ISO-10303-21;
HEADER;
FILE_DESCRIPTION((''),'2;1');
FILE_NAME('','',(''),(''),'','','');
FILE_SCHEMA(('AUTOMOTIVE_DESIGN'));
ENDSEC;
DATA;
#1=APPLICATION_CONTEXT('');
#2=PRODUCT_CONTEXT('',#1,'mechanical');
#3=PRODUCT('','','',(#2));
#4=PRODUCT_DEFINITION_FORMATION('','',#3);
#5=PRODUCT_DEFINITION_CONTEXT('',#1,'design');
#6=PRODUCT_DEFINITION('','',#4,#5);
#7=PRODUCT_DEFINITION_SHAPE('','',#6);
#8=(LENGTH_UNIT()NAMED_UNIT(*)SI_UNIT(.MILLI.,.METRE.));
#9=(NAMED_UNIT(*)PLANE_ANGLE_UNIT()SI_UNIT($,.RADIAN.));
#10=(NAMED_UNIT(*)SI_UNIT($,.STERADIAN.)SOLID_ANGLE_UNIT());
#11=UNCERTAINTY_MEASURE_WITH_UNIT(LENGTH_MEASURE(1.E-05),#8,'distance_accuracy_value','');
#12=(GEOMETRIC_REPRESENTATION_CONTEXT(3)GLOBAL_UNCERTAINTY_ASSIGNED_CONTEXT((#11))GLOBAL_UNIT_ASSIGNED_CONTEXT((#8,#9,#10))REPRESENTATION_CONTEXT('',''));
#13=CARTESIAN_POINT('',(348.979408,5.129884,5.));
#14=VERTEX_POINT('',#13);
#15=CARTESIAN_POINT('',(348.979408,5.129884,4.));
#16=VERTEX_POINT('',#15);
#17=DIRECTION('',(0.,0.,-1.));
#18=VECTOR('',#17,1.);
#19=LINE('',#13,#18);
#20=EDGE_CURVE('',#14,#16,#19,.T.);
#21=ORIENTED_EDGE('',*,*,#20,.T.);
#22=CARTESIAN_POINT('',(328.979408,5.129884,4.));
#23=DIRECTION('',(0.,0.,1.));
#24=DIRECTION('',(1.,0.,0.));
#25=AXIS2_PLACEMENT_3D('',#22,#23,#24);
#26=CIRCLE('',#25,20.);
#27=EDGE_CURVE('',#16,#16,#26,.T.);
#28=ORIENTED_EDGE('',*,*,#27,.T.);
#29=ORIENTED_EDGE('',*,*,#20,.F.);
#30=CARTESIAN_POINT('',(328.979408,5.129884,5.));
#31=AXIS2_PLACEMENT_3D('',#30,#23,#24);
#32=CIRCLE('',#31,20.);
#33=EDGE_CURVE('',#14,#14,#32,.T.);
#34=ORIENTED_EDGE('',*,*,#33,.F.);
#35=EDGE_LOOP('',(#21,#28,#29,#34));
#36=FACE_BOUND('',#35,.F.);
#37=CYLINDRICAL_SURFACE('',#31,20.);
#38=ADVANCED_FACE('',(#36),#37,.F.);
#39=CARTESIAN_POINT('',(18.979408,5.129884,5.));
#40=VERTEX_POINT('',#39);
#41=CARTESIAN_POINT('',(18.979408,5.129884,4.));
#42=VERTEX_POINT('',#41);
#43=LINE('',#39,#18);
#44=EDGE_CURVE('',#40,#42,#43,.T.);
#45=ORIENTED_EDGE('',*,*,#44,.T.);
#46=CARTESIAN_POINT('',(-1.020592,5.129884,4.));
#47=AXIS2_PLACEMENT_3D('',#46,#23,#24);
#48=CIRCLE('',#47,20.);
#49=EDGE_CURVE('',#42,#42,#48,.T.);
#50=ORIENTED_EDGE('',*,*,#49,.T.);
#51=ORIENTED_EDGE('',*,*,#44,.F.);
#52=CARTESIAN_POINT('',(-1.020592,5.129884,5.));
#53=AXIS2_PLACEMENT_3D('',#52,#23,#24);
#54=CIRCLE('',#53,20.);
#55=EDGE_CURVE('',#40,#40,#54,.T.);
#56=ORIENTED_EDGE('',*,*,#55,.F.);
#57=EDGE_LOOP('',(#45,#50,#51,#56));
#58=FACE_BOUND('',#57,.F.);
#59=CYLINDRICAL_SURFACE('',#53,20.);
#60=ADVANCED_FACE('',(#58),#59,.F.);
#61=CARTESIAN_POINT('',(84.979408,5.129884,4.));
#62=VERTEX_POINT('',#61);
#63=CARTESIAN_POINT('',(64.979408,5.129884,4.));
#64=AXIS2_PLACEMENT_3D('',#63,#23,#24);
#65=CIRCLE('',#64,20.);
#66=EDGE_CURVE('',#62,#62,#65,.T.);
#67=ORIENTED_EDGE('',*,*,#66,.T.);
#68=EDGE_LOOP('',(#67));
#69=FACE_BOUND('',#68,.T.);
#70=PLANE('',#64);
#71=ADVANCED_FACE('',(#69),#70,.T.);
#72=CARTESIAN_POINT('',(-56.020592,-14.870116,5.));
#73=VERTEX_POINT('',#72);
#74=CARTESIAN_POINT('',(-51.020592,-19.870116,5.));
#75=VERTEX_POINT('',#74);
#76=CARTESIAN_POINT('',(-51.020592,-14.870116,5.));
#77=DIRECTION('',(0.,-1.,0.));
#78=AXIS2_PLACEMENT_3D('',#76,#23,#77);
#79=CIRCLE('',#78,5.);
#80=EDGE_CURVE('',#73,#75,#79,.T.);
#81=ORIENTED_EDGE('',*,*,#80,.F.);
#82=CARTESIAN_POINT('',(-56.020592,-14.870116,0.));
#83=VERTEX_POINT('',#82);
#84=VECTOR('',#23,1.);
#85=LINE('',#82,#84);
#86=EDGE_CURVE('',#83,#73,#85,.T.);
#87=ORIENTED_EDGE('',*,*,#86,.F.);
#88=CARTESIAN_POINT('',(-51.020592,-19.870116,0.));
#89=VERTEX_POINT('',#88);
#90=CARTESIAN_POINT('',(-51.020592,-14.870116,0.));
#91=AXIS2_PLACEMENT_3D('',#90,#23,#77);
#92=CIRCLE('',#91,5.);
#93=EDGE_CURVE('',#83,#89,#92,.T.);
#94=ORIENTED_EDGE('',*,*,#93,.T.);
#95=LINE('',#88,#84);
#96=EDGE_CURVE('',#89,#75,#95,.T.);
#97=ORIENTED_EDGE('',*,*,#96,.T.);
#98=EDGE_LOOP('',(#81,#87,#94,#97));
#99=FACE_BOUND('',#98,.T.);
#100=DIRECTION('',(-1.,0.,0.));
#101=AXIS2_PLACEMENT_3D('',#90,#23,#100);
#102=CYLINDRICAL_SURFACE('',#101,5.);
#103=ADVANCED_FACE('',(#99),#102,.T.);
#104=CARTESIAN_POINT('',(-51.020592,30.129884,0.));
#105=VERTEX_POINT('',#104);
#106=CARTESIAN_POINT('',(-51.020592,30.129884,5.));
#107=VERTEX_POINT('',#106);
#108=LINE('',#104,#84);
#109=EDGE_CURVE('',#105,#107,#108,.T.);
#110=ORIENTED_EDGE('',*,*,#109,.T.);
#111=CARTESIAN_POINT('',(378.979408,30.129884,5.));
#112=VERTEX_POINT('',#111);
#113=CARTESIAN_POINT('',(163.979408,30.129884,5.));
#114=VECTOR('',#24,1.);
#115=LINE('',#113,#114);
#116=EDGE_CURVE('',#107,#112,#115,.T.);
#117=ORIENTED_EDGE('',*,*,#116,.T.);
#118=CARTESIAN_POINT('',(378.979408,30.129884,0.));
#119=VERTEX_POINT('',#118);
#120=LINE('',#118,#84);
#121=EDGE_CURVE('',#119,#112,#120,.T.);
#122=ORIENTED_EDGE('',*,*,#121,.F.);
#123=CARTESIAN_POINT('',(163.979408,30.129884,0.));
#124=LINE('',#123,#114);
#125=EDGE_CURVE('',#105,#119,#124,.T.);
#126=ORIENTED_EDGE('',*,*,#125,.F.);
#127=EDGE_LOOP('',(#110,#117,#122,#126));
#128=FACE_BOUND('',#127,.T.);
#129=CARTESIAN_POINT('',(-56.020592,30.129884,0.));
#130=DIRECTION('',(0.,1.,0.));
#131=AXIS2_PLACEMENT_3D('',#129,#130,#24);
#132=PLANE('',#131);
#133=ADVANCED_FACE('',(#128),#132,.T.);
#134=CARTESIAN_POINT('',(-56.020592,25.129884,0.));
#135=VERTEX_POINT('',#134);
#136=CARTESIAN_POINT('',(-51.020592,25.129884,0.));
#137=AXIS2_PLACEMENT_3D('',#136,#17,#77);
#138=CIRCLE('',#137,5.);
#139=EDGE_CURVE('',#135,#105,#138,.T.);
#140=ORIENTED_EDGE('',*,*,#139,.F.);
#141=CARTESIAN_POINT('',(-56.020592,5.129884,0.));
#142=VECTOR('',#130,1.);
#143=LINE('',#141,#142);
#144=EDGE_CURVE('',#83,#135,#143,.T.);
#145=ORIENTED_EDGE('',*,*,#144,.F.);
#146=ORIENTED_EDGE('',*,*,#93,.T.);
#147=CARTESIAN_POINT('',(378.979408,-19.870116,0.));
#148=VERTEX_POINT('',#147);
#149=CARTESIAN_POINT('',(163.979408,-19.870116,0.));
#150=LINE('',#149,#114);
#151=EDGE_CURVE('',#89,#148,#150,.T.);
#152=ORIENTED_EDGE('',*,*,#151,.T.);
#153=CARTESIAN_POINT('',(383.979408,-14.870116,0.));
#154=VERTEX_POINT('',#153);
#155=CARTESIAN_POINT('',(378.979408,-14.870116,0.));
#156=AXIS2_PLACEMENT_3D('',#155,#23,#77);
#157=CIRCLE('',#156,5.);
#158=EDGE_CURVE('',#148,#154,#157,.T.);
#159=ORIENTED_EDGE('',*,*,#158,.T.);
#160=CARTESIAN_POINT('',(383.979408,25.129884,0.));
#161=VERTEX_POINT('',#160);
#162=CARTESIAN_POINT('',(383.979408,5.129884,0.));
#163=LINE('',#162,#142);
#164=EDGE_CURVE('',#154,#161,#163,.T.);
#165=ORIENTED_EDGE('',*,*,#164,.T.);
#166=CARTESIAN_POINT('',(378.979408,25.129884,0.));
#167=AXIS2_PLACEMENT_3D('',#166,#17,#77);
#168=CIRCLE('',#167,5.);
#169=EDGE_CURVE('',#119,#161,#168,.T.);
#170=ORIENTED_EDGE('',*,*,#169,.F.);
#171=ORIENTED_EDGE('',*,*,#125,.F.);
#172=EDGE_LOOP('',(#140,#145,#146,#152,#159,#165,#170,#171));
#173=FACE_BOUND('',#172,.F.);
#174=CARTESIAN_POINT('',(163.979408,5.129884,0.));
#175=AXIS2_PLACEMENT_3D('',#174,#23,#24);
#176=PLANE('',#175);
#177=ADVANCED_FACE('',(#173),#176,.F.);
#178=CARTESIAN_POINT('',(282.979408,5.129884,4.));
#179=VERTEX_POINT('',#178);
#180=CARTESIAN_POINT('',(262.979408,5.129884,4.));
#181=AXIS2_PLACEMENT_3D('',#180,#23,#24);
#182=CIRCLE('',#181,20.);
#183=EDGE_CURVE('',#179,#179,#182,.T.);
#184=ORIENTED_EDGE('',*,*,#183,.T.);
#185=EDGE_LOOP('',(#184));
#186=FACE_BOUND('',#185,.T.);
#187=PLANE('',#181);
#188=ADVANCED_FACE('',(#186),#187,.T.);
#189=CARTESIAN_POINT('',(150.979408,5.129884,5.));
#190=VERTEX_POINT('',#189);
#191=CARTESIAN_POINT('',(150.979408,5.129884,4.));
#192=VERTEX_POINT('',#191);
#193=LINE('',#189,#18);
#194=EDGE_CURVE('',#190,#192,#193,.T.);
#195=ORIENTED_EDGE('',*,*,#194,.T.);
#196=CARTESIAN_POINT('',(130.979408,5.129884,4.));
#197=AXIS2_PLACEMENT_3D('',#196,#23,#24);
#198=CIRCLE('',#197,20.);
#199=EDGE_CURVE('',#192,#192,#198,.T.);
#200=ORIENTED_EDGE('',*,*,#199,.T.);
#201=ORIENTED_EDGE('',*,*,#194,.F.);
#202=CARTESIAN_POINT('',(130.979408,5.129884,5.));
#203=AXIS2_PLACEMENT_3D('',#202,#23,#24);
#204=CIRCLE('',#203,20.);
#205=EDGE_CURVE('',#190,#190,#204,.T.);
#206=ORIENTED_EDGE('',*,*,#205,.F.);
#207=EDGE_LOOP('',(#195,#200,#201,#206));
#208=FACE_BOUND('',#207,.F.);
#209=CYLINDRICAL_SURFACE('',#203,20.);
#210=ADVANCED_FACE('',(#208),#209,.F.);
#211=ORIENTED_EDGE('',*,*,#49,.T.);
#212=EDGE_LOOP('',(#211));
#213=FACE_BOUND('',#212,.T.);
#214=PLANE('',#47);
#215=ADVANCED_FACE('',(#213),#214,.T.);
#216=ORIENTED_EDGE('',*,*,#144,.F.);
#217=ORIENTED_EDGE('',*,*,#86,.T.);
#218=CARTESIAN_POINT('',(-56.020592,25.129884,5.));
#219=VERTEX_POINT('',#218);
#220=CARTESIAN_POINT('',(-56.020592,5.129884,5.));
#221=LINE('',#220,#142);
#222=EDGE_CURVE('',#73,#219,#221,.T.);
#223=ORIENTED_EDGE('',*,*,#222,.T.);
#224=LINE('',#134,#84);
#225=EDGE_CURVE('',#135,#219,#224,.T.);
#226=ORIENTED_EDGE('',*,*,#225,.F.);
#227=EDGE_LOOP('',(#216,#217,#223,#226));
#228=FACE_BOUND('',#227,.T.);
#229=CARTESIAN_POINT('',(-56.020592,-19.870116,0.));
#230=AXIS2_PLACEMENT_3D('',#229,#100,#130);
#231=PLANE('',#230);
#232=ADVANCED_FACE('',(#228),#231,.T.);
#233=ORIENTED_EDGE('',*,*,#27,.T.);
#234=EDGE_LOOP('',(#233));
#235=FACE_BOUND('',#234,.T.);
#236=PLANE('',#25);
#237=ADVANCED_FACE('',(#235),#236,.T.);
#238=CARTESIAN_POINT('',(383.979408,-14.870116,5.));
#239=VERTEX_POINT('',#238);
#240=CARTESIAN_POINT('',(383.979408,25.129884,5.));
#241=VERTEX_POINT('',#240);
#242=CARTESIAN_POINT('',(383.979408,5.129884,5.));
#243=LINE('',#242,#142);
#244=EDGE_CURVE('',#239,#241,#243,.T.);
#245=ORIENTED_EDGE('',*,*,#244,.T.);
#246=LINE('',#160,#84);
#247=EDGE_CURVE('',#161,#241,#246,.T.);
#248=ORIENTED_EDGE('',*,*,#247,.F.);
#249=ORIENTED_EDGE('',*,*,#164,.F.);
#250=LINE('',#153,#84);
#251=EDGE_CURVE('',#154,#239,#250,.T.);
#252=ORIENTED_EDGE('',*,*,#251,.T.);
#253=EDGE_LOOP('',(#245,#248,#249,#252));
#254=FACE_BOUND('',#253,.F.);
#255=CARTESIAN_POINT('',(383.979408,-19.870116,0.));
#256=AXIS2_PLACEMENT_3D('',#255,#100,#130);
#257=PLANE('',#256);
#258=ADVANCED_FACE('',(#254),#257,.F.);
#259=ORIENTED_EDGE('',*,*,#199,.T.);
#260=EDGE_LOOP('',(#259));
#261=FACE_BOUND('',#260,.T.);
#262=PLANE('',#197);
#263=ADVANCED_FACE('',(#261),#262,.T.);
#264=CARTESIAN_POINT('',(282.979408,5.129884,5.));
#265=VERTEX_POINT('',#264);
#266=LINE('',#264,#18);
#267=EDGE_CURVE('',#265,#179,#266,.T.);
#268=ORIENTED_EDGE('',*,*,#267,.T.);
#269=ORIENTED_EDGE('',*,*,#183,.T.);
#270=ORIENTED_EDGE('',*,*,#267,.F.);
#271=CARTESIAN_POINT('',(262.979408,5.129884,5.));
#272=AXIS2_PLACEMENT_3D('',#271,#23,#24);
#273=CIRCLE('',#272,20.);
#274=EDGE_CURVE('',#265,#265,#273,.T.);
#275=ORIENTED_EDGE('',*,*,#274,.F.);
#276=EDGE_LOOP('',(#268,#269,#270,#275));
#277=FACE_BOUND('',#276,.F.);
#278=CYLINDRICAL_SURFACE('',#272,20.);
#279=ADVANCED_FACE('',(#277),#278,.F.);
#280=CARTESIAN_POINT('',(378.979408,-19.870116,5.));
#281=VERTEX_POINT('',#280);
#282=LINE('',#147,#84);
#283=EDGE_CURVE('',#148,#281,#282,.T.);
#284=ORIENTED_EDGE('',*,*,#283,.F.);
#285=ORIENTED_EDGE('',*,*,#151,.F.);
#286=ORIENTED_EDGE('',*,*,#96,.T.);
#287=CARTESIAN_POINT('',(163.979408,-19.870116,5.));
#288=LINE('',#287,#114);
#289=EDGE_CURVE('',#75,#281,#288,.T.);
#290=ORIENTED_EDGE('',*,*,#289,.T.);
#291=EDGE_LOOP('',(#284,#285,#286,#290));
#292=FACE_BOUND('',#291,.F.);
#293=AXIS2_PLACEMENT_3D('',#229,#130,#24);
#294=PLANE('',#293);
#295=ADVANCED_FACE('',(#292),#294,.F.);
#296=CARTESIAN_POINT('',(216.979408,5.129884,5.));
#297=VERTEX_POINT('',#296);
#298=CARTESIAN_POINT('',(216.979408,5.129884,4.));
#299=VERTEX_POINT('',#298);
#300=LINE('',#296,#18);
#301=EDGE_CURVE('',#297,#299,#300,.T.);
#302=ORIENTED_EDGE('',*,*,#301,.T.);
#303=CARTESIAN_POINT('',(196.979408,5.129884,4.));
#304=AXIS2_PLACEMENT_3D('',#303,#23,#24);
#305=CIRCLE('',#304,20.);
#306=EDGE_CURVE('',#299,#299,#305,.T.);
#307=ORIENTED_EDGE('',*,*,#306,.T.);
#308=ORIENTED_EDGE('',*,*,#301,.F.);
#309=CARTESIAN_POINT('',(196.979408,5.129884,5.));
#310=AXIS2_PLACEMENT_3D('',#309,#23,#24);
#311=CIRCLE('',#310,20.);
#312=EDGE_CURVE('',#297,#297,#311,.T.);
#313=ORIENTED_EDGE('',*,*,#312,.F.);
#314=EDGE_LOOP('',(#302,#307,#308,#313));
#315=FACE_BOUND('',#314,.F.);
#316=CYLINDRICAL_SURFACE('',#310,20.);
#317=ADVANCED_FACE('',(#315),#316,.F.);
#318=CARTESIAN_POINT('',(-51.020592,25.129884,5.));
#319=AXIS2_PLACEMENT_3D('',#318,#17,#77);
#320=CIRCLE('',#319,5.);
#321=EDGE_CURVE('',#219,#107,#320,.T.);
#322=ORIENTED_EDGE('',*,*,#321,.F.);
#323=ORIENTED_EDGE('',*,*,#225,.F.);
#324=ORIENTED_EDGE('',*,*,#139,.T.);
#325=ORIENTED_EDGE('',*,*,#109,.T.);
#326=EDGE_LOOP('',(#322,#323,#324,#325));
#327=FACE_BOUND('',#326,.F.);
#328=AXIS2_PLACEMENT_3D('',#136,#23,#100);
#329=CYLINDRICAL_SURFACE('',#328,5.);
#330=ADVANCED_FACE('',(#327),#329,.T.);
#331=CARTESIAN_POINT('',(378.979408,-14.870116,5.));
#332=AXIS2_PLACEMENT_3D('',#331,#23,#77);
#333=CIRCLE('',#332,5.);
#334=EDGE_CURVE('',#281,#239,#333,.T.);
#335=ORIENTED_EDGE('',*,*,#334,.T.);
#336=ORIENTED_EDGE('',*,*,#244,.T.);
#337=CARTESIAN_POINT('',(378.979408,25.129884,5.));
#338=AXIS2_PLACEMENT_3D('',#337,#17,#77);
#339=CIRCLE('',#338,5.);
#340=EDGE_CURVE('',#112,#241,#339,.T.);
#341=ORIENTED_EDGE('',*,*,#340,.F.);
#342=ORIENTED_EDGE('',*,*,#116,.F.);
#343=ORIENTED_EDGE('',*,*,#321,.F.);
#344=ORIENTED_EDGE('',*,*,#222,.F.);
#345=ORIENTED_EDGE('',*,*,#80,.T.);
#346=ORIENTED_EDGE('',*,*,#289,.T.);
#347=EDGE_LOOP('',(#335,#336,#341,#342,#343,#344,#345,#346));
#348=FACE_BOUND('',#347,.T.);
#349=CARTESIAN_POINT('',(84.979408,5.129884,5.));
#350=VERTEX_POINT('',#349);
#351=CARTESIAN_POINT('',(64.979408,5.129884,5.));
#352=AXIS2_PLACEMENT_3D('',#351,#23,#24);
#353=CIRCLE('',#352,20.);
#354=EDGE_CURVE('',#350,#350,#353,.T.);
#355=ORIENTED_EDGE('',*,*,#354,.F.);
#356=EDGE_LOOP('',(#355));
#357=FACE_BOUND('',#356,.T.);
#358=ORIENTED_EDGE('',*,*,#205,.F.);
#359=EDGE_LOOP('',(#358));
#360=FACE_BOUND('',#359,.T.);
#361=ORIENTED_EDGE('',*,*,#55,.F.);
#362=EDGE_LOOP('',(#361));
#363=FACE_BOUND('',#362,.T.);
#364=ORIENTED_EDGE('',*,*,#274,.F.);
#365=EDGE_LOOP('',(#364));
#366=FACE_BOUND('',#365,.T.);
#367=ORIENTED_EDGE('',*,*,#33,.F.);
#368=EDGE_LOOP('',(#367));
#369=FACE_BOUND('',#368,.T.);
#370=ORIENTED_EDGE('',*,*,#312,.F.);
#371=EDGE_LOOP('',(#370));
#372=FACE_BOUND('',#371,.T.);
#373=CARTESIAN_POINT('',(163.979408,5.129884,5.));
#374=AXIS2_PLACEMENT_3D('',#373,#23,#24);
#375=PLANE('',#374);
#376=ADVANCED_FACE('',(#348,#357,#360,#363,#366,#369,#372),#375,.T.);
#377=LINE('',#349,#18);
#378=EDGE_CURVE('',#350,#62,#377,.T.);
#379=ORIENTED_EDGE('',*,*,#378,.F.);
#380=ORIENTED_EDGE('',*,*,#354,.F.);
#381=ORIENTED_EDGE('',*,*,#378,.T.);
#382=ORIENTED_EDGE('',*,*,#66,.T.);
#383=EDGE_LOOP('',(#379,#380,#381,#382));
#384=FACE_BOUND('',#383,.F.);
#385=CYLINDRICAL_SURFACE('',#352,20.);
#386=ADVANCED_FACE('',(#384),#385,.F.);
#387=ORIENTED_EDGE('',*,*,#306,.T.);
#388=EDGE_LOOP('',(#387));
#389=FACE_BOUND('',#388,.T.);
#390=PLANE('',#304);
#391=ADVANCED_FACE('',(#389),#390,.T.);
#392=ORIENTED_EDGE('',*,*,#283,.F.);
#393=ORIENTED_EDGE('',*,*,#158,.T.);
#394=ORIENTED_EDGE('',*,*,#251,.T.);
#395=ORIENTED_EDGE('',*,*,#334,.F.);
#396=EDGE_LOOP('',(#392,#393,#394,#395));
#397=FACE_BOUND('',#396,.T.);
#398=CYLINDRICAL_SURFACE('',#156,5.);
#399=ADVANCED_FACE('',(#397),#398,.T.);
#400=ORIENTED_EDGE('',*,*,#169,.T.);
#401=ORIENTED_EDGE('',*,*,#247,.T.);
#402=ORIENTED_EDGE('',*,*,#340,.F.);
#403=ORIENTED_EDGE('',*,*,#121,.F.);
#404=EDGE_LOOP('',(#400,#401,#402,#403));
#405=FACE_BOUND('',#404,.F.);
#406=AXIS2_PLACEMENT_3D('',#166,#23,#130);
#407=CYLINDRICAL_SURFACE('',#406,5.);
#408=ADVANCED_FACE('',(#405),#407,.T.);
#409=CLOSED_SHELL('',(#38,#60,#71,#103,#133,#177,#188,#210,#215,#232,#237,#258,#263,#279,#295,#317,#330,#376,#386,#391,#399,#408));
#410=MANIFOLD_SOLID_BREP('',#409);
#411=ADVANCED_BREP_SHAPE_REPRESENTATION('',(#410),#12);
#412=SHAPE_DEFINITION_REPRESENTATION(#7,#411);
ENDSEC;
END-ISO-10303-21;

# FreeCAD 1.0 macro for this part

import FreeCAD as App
import Part
import Sketcher

V = App.Vector
Q = App.Units.Quantity


def edges_at(feature, points):
    """Names of the edges that pass closest to the given points."""
    edges = feature.Shape.Edges
    near = lambda p: min(range(len(edges)), key=lambda i: edges[i].distToShape(Part.Vertex(*p))[0])
    return sorted({f"Edge{near(p) + 1}" for p in points})


def add_polygon(sketch, points):
    """Adds a closed chain of lines whose ends are joined by coincident constraints."""
    first, n = sketch.GeometryCount, len(points)
    for a, b in zip(points, points[1:] + points[:1]):
        sketch.addGeometry(Part.LineSegment(App.Vector(*a, 0), App.Vector(*b, 0)), False)
    for i in range(n):
        sketch.addConstraint(Sketcher.Constraint("Coincident", first + i, 2, first + (i + 1) % n, 1))

doc = App.newDocument("Part")
body = doc.addObject("PartDesign::Body", "Body")

sketch1 = body.newObject("Sketcher::SketchObject", "Sketch")
sketch1.AttachmentSupport = (doc.getObject("XY_Plane"), [""])
sketch1.MapMode = "FlatFace"
add_polygon(sketch1, [(-56, 30), (-56, -20), (384, -20), (384, 30)])
sketch1.addConstraint([
    Sketcher.Constraint("Vertical", 0),
    Sketcher.Constraint("Horizontal", 1),
    Sketcher.Constraint("Vertical", 2),
    Sketcher.Constraint("Horizontal", 3),
    Sketcher.Constraint("DistanceX", 1, 1, 1, 2, Q("440 mm")),
    Sketcher.Constraint("DistanceY", 0, 2, 0, 1, Q("50 mm")),
    Sketcher.Constraint("DistanceX", -1, 1, 1, 2, Q("383.979408 mm")),
    Sketcher.Constraint("DistanceY", 0, 2, -1, 1, Q("19.870116 mm")),
])
pad1 = body.newObject("PartDesign::Pad", "Pad")
pad1.Profile = sketch1
pad1.Length = 5

sketch2 = body.newObject("Sketcher::SketchObject", "Sketch001")
sketch2.AttachmentSupport = (doc.getObject("XY_Plane"), [""])
sketch2.MapMode = "FlatFace"
sketch2.AttachmentOffset = App.Placement(V(0, 0, 5), App.Rotation())
sketch2.addGeometry(Part.Circle(V(-1, 5, 0), V(0, 0, 1), 20), False)
sketch2.addConstraint([
    Sketcher.Constraint("Diameter", 0, Q("40 mm")),
    Sketcher.Constraint("DistanceX", 0, 3, -1, 1, Q("1.020592 mm")),
    Sketcher.Constraint("DistanceY", -1, 1, 0, 3, Q("5.129884 mm")),
])
pocket1 = body.newObject("PartDesign::Pocket", "Pocket")
pocket1.Profile = sketch2
pocket1.Length = 1
doc.recompute()

linearpattern = body.newObject("PartDesign::LinearPattern", "LinearPattern")
linearpattern.Originals = [pocket1]
linearpattern.Direction = (doc.getObject("X_Axis"), [""])
linearpattern.Mode = "offset"
linearpattern.Offset = 66
linearpattern.Occurrences = 6
body.Tip = linearpattern
doc.recompute()

fillet = body.newObject("PartDesign::Fillet", "Fillet")
fillet.Base = (linearpattern, edges_at(linearpattern, [(-56.021, 30.13, 2.5), (383.979, -19.87, 2.5), (383.979, 30.13, 2.5)]))
fillet.Radius = 5
doc.recompute()

fillet2 = body.newObject("PartDesign::Fillet", "Fillet001")
fillet2.Base = (fillet, edges_at(fillet, [(-56.021, -19.87, 2.5)]))
fillet2.Radius = 5

doc.recompute()
